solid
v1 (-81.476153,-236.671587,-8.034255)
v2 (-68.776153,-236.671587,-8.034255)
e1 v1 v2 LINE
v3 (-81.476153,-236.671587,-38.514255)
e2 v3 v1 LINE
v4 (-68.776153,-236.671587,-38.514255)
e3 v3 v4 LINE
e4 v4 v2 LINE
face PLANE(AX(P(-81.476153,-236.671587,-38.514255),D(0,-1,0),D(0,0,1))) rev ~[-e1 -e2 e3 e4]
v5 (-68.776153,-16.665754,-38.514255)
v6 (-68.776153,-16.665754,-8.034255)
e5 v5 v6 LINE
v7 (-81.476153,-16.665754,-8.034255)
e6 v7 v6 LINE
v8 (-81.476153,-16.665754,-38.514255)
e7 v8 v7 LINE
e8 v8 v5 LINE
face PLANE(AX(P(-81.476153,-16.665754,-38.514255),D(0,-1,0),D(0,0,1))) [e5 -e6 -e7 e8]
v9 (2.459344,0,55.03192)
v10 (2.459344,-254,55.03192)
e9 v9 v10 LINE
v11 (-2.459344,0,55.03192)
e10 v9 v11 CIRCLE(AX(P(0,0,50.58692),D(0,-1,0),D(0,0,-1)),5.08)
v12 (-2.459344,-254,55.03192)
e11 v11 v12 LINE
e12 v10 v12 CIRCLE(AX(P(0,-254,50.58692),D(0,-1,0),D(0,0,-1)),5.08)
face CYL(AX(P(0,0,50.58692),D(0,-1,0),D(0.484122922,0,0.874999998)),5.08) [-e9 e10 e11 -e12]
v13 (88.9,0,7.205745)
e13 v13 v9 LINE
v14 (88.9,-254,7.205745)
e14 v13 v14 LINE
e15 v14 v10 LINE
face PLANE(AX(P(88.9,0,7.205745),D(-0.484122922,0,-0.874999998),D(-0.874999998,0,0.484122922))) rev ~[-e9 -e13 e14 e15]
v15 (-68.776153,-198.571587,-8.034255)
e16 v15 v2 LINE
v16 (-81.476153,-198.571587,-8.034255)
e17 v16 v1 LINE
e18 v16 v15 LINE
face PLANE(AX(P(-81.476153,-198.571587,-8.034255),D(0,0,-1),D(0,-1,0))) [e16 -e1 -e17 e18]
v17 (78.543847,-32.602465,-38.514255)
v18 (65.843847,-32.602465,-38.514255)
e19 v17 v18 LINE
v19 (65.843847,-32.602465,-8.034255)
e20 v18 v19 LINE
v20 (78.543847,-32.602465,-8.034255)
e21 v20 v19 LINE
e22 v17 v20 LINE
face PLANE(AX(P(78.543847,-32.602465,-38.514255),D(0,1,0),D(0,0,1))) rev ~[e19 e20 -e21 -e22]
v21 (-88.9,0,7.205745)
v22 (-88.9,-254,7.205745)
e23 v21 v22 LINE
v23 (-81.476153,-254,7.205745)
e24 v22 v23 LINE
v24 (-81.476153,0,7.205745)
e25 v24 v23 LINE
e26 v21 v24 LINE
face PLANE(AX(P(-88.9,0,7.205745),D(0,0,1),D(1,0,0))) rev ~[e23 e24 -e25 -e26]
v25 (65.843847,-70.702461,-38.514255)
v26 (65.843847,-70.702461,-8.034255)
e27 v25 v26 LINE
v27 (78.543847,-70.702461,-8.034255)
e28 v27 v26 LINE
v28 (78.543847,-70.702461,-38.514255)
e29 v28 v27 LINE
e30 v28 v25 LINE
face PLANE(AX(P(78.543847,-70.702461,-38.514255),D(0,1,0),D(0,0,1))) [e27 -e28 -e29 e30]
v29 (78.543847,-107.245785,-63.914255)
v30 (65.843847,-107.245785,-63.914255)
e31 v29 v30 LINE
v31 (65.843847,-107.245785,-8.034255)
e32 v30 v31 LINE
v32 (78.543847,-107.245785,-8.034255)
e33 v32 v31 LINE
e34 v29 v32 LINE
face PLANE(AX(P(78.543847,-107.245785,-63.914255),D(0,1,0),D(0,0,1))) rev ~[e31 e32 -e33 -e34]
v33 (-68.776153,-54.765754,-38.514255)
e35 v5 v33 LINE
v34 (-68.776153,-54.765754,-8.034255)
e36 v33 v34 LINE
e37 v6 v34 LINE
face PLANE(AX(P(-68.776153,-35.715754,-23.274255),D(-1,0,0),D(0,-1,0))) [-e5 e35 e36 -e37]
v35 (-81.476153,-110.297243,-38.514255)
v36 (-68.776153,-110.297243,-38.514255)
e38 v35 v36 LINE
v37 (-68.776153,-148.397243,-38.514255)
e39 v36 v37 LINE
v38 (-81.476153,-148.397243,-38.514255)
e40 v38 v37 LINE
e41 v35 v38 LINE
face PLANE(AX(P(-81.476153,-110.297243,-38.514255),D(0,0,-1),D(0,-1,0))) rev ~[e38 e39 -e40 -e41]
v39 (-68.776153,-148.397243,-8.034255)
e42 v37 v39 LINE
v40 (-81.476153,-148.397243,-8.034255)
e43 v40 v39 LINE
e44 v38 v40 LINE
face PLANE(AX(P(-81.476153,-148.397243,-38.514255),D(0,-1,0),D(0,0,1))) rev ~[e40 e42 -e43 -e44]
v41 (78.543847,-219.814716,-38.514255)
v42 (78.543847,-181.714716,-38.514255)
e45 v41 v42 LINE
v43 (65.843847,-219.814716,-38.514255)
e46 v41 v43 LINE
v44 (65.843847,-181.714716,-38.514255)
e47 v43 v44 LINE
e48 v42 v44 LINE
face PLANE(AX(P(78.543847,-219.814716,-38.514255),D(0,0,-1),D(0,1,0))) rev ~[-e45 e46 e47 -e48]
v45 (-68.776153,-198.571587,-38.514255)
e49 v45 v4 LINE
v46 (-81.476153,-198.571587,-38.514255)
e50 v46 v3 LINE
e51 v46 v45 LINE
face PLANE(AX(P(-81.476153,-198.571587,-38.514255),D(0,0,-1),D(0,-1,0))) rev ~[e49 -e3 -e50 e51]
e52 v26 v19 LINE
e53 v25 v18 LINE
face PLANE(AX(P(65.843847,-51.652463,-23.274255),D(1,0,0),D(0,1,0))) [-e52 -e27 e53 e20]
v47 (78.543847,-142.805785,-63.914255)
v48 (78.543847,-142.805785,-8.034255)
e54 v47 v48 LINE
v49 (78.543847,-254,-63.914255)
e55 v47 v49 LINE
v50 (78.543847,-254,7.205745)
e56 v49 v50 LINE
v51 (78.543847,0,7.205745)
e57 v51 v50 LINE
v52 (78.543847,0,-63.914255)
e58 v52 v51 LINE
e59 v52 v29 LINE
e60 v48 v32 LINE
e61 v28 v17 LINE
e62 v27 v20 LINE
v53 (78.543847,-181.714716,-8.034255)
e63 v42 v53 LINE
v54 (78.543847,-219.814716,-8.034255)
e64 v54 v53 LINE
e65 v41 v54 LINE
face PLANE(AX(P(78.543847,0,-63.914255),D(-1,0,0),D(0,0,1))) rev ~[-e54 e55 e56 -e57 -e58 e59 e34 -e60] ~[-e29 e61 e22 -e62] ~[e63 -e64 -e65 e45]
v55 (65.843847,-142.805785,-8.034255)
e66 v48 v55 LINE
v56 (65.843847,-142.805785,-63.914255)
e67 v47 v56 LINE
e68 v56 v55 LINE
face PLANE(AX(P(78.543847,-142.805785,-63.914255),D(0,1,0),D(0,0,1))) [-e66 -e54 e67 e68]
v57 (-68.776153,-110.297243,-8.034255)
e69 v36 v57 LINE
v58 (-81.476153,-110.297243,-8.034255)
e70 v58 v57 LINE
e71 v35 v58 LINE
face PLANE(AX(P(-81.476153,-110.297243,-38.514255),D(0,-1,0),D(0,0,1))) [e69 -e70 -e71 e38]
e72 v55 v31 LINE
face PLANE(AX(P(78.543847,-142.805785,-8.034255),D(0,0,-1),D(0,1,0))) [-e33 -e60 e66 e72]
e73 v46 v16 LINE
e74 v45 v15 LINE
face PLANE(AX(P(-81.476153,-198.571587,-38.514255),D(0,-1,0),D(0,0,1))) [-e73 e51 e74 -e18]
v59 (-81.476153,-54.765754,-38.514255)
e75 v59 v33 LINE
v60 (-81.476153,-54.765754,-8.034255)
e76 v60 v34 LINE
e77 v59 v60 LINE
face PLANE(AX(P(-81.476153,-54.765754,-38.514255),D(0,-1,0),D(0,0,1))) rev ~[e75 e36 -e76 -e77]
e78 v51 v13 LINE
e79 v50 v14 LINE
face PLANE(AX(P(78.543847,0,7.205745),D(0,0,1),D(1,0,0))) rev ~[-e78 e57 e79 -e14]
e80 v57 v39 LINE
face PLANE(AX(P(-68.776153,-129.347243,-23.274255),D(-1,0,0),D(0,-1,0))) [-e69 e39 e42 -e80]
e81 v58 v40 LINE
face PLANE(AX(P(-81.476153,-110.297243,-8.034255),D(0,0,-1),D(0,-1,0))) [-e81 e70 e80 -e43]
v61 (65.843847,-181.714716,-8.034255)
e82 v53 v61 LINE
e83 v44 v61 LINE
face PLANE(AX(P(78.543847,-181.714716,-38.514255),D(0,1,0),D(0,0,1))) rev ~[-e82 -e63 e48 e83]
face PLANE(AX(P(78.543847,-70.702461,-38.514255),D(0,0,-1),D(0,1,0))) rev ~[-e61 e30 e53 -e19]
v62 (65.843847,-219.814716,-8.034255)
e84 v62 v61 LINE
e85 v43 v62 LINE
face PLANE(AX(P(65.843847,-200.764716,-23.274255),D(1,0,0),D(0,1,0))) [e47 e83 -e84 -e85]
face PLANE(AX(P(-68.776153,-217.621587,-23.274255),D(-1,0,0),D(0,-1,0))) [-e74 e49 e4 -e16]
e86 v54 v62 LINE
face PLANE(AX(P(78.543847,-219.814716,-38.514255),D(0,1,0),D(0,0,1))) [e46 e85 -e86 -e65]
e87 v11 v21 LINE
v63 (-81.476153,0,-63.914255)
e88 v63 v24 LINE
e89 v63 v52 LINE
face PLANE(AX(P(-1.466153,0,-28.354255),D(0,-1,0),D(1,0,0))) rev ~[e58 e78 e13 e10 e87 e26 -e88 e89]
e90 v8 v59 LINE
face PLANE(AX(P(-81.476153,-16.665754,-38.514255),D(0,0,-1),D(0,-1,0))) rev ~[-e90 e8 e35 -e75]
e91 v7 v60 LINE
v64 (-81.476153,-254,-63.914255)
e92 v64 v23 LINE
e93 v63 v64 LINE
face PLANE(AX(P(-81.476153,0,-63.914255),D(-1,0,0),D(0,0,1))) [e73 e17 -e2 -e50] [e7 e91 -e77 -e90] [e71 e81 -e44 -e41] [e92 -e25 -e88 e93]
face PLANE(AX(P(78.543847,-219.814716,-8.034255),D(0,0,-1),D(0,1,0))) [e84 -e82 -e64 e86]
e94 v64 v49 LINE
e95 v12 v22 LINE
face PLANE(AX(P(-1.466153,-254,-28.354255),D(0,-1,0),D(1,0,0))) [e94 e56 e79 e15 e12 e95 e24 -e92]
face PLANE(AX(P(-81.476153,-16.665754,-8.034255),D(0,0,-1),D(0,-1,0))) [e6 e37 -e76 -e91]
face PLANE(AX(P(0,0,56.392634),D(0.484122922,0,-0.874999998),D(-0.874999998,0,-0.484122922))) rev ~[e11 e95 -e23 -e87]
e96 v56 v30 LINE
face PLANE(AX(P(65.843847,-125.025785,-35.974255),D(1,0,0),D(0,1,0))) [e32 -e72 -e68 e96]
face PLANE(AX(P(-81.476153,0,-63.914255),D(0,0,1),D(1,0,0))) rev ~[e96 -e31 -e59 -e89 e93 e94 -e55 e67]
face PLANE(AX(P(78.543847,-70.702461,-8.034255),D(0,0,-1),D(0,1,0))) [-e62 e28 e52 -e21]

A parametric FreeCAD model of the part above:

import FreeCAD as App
import Part
import Sketcher
from FreeCAD import Vector
Q = App.Units.Quantity


def edges_at(feature, points):
    """Names of the edges that pass closest to the given points."""
    edges = feature.Shape.Edges
    near = lambda p: min(range(len(edges)), key=lambda i: edges[i].distToShape(Part.Vertex(*p))[0])
    return sorted({f"Edge{near(p) + 1}" for p in points})


def add_polygon(sketch, points):
    """Adds a closed chain of lines whose ends are joined by coincident constraints."""
    first, n = sketch.GeometryCount, len(points)
    for a, b in zip(points, points[1:] + points[:1]):
        sketch.addGeometry(Part.LineSegment(App.Vector(*a, 0), App.Vector(*b, 0)), False)
    for i in range(n):
        sketch.addConstraint(Sketcher.Constraint("Coincident", first + i, 2, first + (i + 1) % n, 1))

doc = App.newDocument("Part")
params = doc.addObject("Spreadsheet::Sheet", "Params")
for row, (alias, value) in enumerate([
    ("sketch1_length", "4 in"),
    ("sketch1_width", "6.3 in"),
    ("sketch1_height", "2.8 in"),
    ("pad1_length", "10 in"),
    ("sketch2_width", "1.5 in"),
    ("sketch2_width2", "1.4999999 in"),
    ("sketch2_width3", "1.4 in"),
    ("sketch2_height", "1.2 in"),
    ("sketch2_height2", "2.2 in"),
    ("pocket1_length", "0.5 in"),
    ("sketch3_width", "1.5 in"),
    ("sketch3_height", "1.2 in"),
    ("pocket2_length", "0.5 in"),
    ("fillet_radius", "0.2 in"),
], start=1):
    params.set(f"A{row}", alias)
    params.set(f"B{row}", "=" + value)
    params.setAlias(f"B{row}", alias)

body = doc.addObject("PartDesign::Body", "Body")

sketch1 = doc.addObject("Sketcher::SketchObject", "Sketch")
body.addObject(sketch1)
sketch1.AttachmentSupport = (doc.XZ_Plane, [""])
sketch1.MapMode = "FlatFace"
add_polygon(sketch1, [(-81, 7), (-81, -64), (79, -64), (79, 7), (89, 7), (0, 56), (-89, 7)])
sketch1.addConstraint([
    Sketcher.Constraint("Vertical", 0),
    Sketcher.Constraint("Horizontal", 1),
    Sketcher.Constraint("Vertical", 2),
    Sketcher.Constraint("Horizontal", 3),
    Sketcher.Constraint("Horizontal", 6),
    Sketcher.Constraint("Symmetric", 3, 2, 5, 2, -2),
    Sketcher.Constraint("PointOnObject", 4, 2, -2),
    Sketcher.Constraint("Distance", 4, Q("4 in")),
    Sketcher.Constraint("DistanceX", 1, 1, 1, 2, Q("6.3 in")),
    Sketcher.Constraint("DistanceY", 0, 2, 0, 1, Q("2.8 in")),
    Sketcher.Constraint("DistanceX", 5, 2, 3, 2, Q("7 in")),
    Sketcher.Constraint("DistanceX", 3, 1, 3, 2, Q("10.356153 mm")),
    Sketcher.Constraint("DistanceY", 0, 2, -1, 1, Q("63.914255 mm")),
])
sketch1.setExpression("Constraints[14]", "Params.sketch1_length")
sketch1.setExpression("Constraints[15]", "Params.sketch1_width")
sketch1.setExpression("Constraints[16]", "Params.sketch1_height")
pad1 = doc.addObject("PartDesign::Pad", "Pad")
body.addObject(pad1)
pad1.Profile = sketch1
pad1.setExpression("Length", "Params.pad1_length")

sketch2 = doc.addObject("Sketcher::SketchObject", "Sketch001")
body.addObject(sketch2)
sketch2.AttachmentSupport = (doc.YZ_Plane, [""])
sketch2.MapMode = "FlatFace"
sketch2.AttachmentOffset = App.Placement(Vector(0, 0, 78.543847), App.Rotation())
add_polygon(sketch2, [(-220, -8), (-220, -39), (-182, -39), (-182, -8)])
add_polygon(sketch2, [(-71, -8), (-71, -39), (-33, -39), (-33, -8)])
add_polygon(sketch2, [(-143, -8), (-143, -64), (-107, -64), (-107, -8)])
sketch2.addConstraint([
    Sketcher.Constraint("Vertical", 0),
    Sketcher.Constraint("Horizontal", 1),
    Sketcher.Constraint("Vertical", 2),
    Sketcher.Constraint("Horizontal", 3),
    Sketcher.Constraint("Vertical", 4),
    Sketcher.Constraint("Horizontal", 5),
    Sketcher.Constraint("Vertical", 6),
    Sketcher.Constraint("Horizontal", 7),
    Sketcher.Constraint("Vertical", 8),
    Sketcher.Constraint("Horizontal", 9),
    Sketcher.Constraint("Vertical", 10),
    Sketcher.Constraint("Horizontal", 11),
    Sketcher.Constraint("Horizontal", 1, 2, 4, 2),
    Sketcher.Constraint("Horizontal", 3, 2, 6, 2),
    Sketcher.Constraint("Horizontal", 7, 2, 10, 2),
    Sketcher.Constraint("DistanceX", 1, 1, 1, 2, Q("1.5 in")),
    Sketcher.Constraint("DistanceX", 5, 1, 5, 2, Q("1.4999999 in")),
    Sketcher.Constraint("DistanceX", 9, 1, 9, 2, Q("1.4 in")),
    Sketcher.Constraint("DistanceY", 0, 2, 0, 1, Q("1.2 in")),
    Sketcher.Constraint("DistanceY", 8, 2, 8, 1, Q("2.2 in")),
    Sketcher.Constraint("DistanceX", 4, 2, -1, 1, Q("70.702461 mm")),
    Sketcher.Constraint("DistanceX", 1, 2, 5, 2, Q("149.112252 mm")),
    Sketcher.Constraint("DistanceX", 1, 2, 8, 2, Q("38.908931 mm")),
    Sketcher.Constraint("DistanceY", 0, 2, -1, 1, Q("38.514255 mm")),
])
sketch2.setExpression("Constraints[27]", "Params.sketch2_width")
sketch2.setExpression("Constraints[28]", "Params.sketch2_width2")
sketch2.setExpression("Constraints[29]", "Params.sketch2_width3")
sketch2.setExpression("Constraints[30]", "Params.sketch2_height")
sketch2.setExpression("Constraints[31]", "Params.sketch2_height2")
pocket1 = doc.addObject("PartDesign::Pocket", "Pocket")
body.addObject(pocket1)
pocket1.Profile = sketch2
pocket1.setExpression("Length", "Params.pocket1_length")

sketch3 = doc.addObject("Sketcher::SketchObject", "Sketch002")
body.addObject(sketch3)
sketch3.AttachmentSupport = (doc.YZ_Plane, [""])
sketch3.MapMode = "FlatFace"
sketch3.AttachmentOffset = App.Placement(Vector(0, 0, -81.476153), App.Rotation())
add_polygon(sketch3, [(-17, -8), (-17, -39), (-55, -39), (-55, -8)])
add_polygon(sketch3, [(-110, -8), (-110, -39), (-148, -39), (-148, -8)])
add_polygon(sketch3, [(-199, -8), (-199, -39), (-237, -39), (-237, -8)])
sketch3.addConstraint([
    Sketcher.Constraint("Vertical", 0),
    Sketcher.Constraint("Horizontal", 1),
    Sketcher.Constraint("Vertical", 2),
    Sketcher.Constraint("Horizontal", 3),
    Sketcher.Constraint("Vertical", 4),
    Sketcher.Constraint("Horizontal", 5),
    Sketcher.Constraint("Vertical", 6),
    Sketcher.Constraint("Horizontal", 7),
    Sketcher.Constraint("Vertical", 8),
    Sketcher.Constraint("Horizontal", 9),
    Sketcher.Constraint("Vertical", 10),
    Sketcher.Constraint("Horizontal", 11),
    Sketcher.Constraint("Horizontal", 1, 2, 4, 2),
    Sketcher.Constraint("Horizontal", 3, 2, 6, 2),
    Sketcher.Constraint("Horizontal", 5, 2, 8, 2),
    Sketcher.Constraint("Horizontal", 7, 2, 10, 2),
    Sketcher.Constraint("Equal", 3, 5),
    Sketcher.Constraint("Equal", 7, 9),
    Sketcher.Constraint("DistanceX", 1, 2, 1, 1, Q("1.5 in")),
    Sketcher.Constraint("DistanceY", 0, 2, 0, 1, Q("1.2 in")),
    Sketcher.Constraint("DistanceX", 4, 2, 1, 2, Q("55.531489 mm")),
    Sketcher.Constraint("DistanceX", 0, 2, -1, 1, Q("16.665754 mm")),
    Sketcher.Constraint("DistanceY", 0, 2, -1, 1, Q("38.514255 mm")),
    Sketcher.Constraint("DistanceX", 8, 2, -1, 1, Q("198.571587 mm")),
])
sketch3.setExpression("Constraints[30]", "Params.sketch3_width")
sketch3.setExpression("Constraints[31]", "Params.sketch3_height")
pocket2 = doc.addObject("PartDesign::Pocket", "Pocket001")
body.addObject(pocket2)
pocket2.Profile = sketch3
pocket2.setExpression("Length", "Params.pocket2_length")
pocket2.Reversed = True
doc.recompute()

fillet = doc.addObject("PartDesign::Fillet", "Fillet")
body.addObject(fillet)
fillet.Base = (pocket2, edges_at(pocket2, [(0, -127, 56.393)]))
fillet.setExpression("Radius", "Params.fillet_radius")

doc.recompute()
